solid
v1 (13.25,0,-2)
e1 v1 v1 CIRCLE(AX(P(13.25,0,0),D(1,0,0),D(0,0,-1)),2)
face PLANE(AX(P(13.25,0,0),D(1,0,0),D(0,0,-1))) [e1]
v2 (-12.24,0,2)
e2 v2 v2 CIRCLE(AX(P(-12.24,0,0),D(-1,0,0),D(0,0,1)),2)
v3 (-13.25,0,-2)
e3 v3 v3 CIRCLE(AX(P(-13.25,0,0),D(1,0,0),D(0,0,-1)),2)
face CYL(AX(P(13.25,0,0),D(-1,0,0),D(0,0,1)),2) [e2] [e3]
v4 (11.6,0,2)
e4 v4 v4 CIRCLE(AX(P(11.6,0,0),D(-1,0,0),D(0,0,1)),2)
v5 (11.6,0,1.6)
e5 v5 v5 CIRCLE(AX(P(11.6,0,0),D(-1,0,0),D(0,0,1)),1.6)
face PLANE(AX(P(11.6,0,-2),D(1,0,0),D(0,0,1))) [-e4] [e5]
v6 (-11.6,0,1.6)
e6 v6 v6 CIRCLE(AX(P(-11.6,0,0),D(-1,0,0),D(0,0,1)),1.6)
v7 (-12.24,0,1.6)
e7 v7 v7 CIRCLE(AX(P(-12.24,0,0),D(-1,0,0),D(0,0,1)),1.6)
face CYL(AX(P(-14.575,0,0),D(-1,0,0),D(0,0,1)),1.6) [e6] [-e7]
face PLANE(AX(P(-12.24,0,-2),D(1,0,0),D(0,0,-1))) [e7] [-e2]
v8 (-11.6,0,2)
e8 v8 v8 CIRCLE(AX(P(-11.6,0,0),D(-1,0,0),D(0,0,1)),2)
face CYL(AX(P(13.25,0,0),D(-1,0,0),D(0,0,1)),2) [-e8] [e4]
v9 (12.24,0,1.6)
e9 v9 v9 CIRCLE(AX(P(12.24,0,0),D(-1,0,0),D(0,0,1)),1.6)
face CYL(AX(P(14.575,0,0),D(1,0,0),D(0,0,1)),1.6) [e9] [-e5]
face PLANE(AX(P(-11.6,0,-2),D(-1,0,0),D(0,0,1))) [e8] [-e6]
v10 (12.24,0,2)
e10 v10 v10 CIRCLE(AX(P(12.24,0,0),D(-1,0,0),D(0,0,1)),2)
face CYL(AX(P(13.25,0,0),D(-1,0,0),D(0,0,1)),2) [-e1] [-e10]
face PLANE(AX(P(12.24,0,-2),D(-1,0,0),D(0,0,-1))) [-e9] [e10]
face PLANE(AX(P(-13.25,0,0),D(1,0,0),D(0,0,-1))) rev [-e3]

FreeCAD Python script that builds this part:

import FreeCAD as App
import Part
import Sketcher

V = App.Vector

doc = App.newDocument("Part")
body = doc.addObject("PartDesign::Body", "Body")

# Sketch on YZ plane
sketch1 = body.newObject("Sketcher::SketchObject", "Sketch")
sketch1.AttachmentSupport = (doc.getObject("YZ_Plane"), [""])
sketch1.MapMode = "FlatFace"
sketch1.addGeometry(Part.Circle(V(0, 0, 0), V(0, 0, 1), 2), False)
sketch1.addConstraint(Sketcher.Constraint("Coincident", 0, 3, -1, 1))
sketch1.addConstraint(Sketcher.Constraint("Diameter", 0, 4.0))
pad1 = body.newObject("PartDesign::Pad", "Pad")
pad1.Profile = sketch1
pad1.Length = 26.5
pad1.Midplane = True

# Sketch on XZ plane
sketch2 = body.newObject("Sketcher::SketchObject", "Sketch001")
sketch2.AttachmentSupport = (doc.getObject("XZ_Plane"), [""])
sketch2.MapMode = "FlatFace"
sketch2.addGeometry(Part.LineSegment(V(-12.24, -2, 0), V(-12.24, -1.6, 0)), False)
sketch2.addGeometry(Part.LineSegment(V(-12.24, -1.6, 0), V(-11.6, -1.6, 0)), False)
sketch2.addGeometry(Part.LineSegment(V(-11.6, -1.6, 0), V(-11.6, -2, 0)), False)
sketch2.addGeometry(Part.LineSegment(V(-11.6, -2, 0), V(-12.24, -2, 0)), False)
sketch2.addConstraint(Sketcher.Constraint("Coincident", 0, 2, 1, 1))
sketch2.addConstraint(Sketcher.Constraint("Coincident", 1, 2, 2, 1))
sketch2.addConstraint(Sketcher.Constraint("Coincident", 2, 2, 3, 1))
sketch2.addConstraint(Sketcher.Constraint("Coincident", 3, 2, 0, 1))
sketch2.addConstraint(Sketcher.Constraint("Vertical", 0))
sketch2.addConstraint(Sketcher.Constraint("Horizontal", 1))
sketch2.addConstraint(Sketcher.Constraint("Vertical", 2))
sketch2.addConstraint(Sketcher.Constraint("Horizontal", 3))
sketch2.addConstraint(Sketcher.Constraint("DistanceY", 0, 1, 0, 2, 0.4))
sketch2.addConstraint(Sketcher.Constraint("DistanceY", 2, 2, -1, 1, 2.0))
sketch2.addConstraint(Sketcher.Constraint("DistanceX", 1, 1, 1, 2, 0.64))
sketch2.addConstraint(Sketcher.Constraint("DistanceX", 1, 2, -1, 1, 11.6))
groove = body.newObject("PartDesign::Groove", "Groove")
groove.Profile = sketch2
groove.ReferenceAxis = (sketch2, ["H_Axis"])
groove.Angle = 360
doc.recompute()

mirrored = body.newObject("PartDesign::Mirrored", "Mirrored")
mirrored.Originals = [groove]
mirrored.MirrorPlane = (doc.getObject("YZ_Plane"), [""])
body.Tip = mirrored

doc.recompute()
